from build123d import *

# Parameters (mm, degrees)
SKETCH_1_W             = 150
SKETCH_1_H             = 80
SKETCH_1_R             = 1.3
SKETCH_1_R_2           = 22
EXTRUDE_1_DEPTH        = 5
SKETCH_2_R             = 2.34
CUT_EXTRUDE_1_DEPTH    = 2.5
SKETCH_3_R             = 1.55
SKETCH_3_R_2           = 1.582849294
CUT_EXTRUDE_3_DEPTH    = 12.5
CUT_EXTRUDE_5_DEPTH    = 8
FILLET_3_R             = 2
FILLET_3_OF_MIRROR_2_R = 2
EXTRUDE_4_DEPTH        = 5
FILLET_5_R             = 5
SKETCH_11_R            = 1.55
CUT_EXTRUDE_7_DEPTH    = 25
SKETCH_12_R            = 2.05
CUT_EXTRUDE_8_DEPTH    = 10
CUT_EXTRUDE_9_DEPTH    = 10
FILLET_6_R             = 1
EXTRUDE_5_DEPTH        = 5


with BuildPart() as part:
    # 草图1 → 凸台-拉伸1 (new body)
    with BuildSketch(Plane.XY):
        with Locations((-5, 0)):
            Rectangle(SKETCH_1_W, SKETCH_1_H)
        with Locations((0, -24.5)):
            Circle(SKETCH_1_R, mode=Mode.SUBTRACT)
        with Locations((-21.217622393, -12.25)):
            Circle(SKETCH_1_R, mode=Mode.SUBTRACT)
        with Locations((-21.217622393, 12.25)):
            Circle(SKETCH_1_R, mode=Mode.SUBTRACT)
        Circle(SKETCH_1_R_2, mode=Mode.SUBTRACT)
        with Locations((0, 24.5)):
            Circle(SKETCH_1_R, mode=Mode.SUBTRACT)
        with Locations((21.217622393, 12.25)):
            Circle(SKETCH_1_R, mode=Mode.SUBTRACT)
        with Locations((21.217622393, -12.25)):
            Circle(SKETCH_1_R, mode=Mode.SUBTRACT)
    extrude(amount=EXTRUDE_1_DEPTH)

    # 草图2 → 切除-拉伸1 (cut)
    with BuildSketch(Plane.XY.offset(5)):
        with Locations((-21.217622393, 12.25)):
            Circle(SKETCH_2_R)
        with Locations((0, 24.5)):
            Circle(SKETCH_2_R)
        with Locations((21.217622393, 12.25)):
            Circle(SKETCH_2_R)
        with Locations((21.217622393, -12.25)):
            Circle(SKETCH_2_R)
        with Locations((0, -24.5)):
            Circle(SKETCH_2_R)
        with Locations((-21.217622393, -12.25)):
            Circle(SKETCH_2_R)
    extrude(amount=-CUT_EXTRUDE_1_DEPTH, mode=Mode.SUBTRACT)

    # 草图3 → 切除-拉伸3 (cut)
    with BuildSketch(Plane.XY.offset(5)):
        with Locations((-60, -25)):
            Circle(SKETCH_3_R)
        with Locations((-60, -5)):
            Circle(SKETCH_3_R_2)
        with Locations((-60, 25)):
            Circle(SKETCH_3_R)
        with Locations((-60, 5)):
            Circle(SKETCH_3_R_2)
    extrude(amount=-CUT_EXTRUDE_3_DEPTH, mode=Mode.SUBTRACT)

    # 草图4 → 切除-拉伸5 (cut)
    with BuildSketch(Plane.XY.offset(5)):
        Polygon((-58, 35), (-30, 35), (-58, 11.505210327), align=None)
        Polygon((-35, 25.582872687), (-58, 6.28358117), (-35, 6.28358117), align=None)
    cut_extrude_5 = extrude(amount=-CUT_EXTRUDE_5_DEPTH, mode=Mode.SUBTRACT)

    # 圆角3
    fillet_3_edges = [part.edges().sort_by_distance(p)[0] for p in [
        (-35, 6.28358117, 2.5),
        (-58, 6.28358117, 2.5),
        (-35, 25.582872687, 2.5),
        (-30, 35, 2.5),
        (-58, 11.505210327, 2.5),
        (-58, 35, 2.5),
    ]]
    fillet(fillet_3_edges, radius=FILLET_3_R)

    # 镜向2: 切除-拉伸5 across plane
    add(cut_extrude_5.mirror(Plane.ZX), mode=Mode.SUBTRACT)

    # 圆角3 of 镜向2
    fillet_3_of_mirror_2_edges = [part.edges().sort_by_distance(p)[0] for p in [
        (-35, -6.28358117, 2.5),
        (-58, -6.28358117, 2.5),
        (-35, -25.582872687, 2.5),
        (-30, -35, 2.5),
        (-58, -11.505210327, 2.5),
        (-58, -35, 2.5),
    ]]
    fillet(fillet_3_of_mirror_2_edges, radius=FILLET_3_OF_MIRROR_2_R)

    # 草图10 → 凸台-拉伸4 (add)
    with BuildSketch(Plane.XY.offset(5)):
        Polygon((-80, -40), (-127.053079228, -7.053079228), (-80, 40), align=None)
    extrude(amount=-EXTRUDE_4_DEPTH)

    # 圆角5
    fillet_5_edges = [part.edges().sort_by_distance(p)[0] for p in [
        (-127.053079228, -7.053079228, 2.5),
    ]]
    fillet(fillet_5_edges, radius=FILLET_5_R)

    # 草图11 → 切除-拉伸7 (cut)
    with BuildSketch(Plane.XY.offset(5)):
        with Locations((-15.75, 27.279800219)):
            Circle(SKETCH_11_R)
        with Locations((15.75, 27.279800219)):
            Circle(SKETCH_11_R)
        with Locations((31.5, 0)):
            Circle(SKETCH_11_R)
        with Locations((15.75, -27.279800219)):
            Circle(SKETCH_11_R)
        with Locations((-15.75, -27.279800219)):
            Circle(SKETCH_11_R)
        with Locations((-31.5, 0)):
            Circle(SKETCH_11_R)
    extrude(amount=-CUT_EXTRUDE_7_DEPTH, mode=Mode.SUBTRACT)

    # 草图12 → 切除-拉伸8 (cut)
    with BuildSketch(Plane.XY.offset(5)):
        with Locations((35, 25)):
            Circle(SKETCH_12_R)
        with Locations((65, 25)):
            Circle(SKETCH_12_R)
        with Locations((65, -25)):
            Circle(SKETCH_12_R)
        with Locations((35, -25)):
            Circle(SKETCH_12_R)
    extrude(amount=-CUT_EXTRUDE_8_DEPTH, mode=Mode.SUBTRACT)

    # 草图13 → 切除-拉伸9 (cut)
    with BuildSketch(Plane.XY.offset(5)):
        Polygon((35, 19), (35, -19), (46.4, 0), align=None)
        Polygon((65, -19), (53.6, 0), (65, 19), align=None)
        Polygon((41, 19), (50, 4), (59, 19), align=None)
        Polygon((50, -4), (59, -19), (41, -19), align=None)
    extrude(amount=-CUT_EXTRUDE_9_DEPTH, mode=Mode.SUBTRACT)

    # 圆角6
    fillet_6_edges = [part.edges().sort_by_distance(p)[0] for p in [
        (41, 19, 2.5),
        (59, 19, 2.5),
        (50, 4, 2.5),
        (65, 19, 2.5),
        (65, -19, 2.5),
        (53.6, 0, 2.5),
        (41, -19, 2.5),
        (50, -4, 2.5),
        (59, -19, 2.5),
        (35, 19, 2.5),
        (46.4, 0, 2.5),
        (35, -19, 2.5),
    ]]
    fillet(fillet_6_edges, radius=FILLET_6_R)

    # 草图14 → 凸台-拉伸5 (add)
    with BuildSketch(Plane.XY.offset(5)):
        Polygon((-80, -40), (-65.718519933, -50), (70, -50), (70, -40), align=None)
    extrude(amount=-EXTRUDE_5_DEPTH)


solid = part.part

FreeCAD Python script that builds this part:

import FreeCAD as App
import Part
import Sketcher
from FreeCAD import Vector
Q = App.Units.Quantity


def edges_at(feature, points):
    """Names of the edges that pass closest to the given points."""
    edges = feature.Shape.Edges
    near = lambda p: min(range(len(edges)), key=lambda i: edges[i].distToShape(Part.Vertex(*p))[0])
    return sorted({f"Edge{near(p) + 1}" for p in points})


def add_polygon(sketch, points):
    """Adds a closed chain of lines whose ends are joined by coincident constraints."""
    first, n = sketch.GeometryCount, len(points)
    for a, b in zip(points, points[1:] + points[:1]):
        sketch.addGeometry(Part.LineSegment(App.Vector(*a, 0), App.Vector(*b, 0)), False)
    for i in range(n):
        sketch.addConstraint(Sketcher.Constraint("Coincident", first + i, 2, first + (i + 1) % n, 1))

doc = App.newDocument("Part")
params = doc.addObject("Spreadsheet::Sheet", "Params")
for row, (alias, value) in enumerate([
    ("sketch1_diameter", "44 mm"),
    ("sketch1_diameter2", "2.6 mm"),
    ("sketch1_width", "150 mm"),
    ("sketch1_height", "80 mm"),
    ("pad1_length", "5 mm"),
    ("sketch2_diameter", "4.68 mm"),
    ("pocket1_length", "2.5 mm"),
    ("sketch3_diameter", "3.1 mm"),
    ("pocket2_length", "12.5 mm"),
    ("sketch4_width", "28 mm"),
    ("sketch4_width2", "23 mm"),
    ("pocket3_length", "8 mm"),
    ("fillet_radius", "2 mm"),
    ("fillet2_radius", "2 mm"),
    ("sketch5_height", "80 mm"),
    ("pad2_length", "5 mm"),
    ("fillet3_radius", "5 mm"),
    ("sketch6_diameter", "3.1 mm"),
    ("pocket4_length", "25 mm"),
    ("sketch7_diameter", "4.1 mm"),
    ("pocket5_length", "10 mm"),
    ("sketch8_width", "18 mm"),
    ("sketch8_height", "38 mm"),
    ("pocket6_length", "10 mm"),
    ("fillet4_radius", "1 mm"),
    ("sketch9_width", "150 mm"),
    ("sketch9_height", "10 mm"),
    ("pad3_length", "5 mm"),
], start=1):
    params.set(f"A{row}", alias)
    params.set(f"B{row}", "=" + value)
    params.setAlias(f"B{row}", alias)

body = doc.addObject("PartDesign::Body", "Body")

# Sketch on XY plane
sketch1 = body.newObject("Sketcher::SketchObject", "Sketch")
sketch1.AttachmentSupport = (doc.getObject("XY_Plane"), [""])
sketch1.MapMode = "FlatFace"
add_polygon(sketch1, [(-80, 40), (-80, -40), (70, -40), (70, 40)])  # lines 0-3
sketch1.addGeometry(Part.Circle(Vector(-21.217622, -12.25, 0), Vector(0, 0, 1), 1.3), False)  # 4
sketch1.addGeometry(Part.Circle(Vector(0, -24.5, 0), Vector(0, 0, 1), 1.3), False)  # 5
sketch1.addGeometry(Part.Circle(Vector(21.217622, -12.25, 0), Vector(0, 0, 1), 1.3), False)  # 6
sketch1.addGeometry(Part.Circle(Vector(-21.217622, 12.25, 0), Vector(0, 0, 1), 1.3), False)  # 7
sketch1.addGeometry(Part.Circle(Vector(0, 0, 0), Vector(0, 0, 1), 22), False)  # 8
sketch1.addGeometry(Part.Circle(Vector(21.217622, 12.25, 0), Vector(0, 0, 1), 1.3), False)  # 9
sketch1.addGeometry(Part.Circle(Vector(0, 24.5, 0), Vector(0, 0, 1), 1.3), False)  # 10
sketch1.addConstraint([
    Sketcher.Constraint("Vertical", 0),
    Sketcher.Constraint("Horizontal", 1),
    Sketcher.Constraint("Vertical", 2),
    Sketcher.Constraint("Horizontal", 3),
    Sketcher.Constraint("Coincident", 8, 3, -1, 1),
    Sketcher.Constraint("Equal", 4, 5),
    Sketcher.Constraint("Equal", 5, 6),
    Sketcher.Constraint("Equal", 6, 7),
    Sketcher.Constraint("Equal", 7, 9),
    Sketcher.Constraint("Equal", 9, 10),
    Sketcher.Constraint("Symmetric", 6, 3, 7, 3, -1, 1),
    Sketcher.Constraint("Symmetric", 4, 3, 9, 3, -1, 1),
    Sketcher.Constraint("Symmetric", 5, 3, 10, 3, -1, 1),
    Sketcher.Constraint("Symmetric", 4, 3, 6, 3, -2),
    Sketcher.Constraint("PointOnObject", 5, 3, -2),
    Sketcher.Constraint("Diameter", 8, Q("44 mm")),
    Sketcher.Constraint("Diameter", 4, Q("2.6 mm")),
    Sketcher.Constraint("DistanceX", 1, 1, 1, 2, Q("150 mm")),
    Sketcher.Constraint("DistanceY", 0, 2, 0, 1, Q("80 mm")),
    Sketcher.Constraint("DistanceX", 0, 2, -1, 1, Q("80 mm")),
    Sketcher.Constraint("DistanceY", 0, 2, -1, 1, Q("40 mm")),
    Sketcher.Constraint("DistanceY", 5, 3, -1, 1, Q("24.5 mm")),
    Sketcher.Constraint("DistanceY", 4, 3, 7, 3, Q("24.5 mm")),
    Sketcher.Constraint("DistanceX", 4, 3, -1, 1, Q("21.217622 mm")),
])
sketch1.setExpression("Constraints[19]", "Params.sketch1_diameter")
sketch1.setExpression("Constraints[20]", "Params.sketch1_diameter2")
sketch1.setExpression("Constraints[21]", "Params.sketch1_width")
sketch1.setExpression("Constraints[22]", "Params.sketch1_height")
pad1 = body.newObject("PartDesign::Pad", "Pad")
pad1.Profile = sketch1
pad1.setExpression("Length", "Params.pad1_length")

# Sketch on XY plane
sketch2 = body.newObject("Sketcher::SketchObject", "Sketch001")
sketch2.AttachmentSupport = (doc.getObject("XY_Plane"), [""])
sketch2.MapMode = "FlatFace"
sketch2.AttachmentOffset = App.Placement(Vector(0, 0, 5), App.Rotation())
sketch2.addGeometry([
    Part.Circle(Vector(-21.217622, 12.25, 0), Vector(0, 0, 1), 2.34),  # 0
    Part.Circle(Vector(0, 24.5, 0), Vector(0, 0, 1), 2.34),  # 1
    Part.Circle(Vector(21.217622, 12.25, 0), Vector(0, 0, 1), 2.34),  # 2
    Part.Circle(Vector(21.217622, -12.25, 0), Vector(0, 0, 1), 2.34),  # 3
    Part.Circle(Vector(0, -24.5, 0), Vector(0, 0, 1), 2.34),  # 4
    Part.Circle(Vector(-21.217622, -12.25, 0), Vector(0, 0, 1), 2.34),  # 5
], False)
sketch2.addConstraint([
    Sketcher.Constraint("Equal", 0, 1),
    Sketcher.Constraint("Equal", 1, 2),
    Sketcher.Constraint("Equal", 2, 3),
    Sketcher.Constraint("Equal", 3, 4),
    Sketcher.Constraint("Equal", 4, 5),
    Sketcher.Constraint("Symmetric", 0, 3, 3, 3, -1, 1),
    Sketcher.Constraint("Symmetric", 1, 3, 4, 3, -1, 1),
    Sketcher.Constraint("Symmetric", 2, 3, 5, 3, -1, 1),
    Sketcher.Constraint("Symmetric", 0, 3, 2, 3, -2),
    Sketcher.Constraint("PointOnObject", 1, 3, -2),
    Sketcher.Constraint("Diameter", 0, Q("4.68 mm")),
    Sketcher.Constraint("DistanceY", 4, 3, 1, 3, Q("49 mm")),
    Sketcher.Constraint("DistanceY", 3, 3, 2, 3, Q("24.5 mm")),
    Sketcher.Constraint("DistanceX", 0, 3, -1, 1, Q("21.217622 mm")),
])
sketch2.setExpression("Constraints[10]", "Params.sketch2_diameter")
pocket1 = body.newObject("PartDesign::Pocket", "Pocket")
pocket1.Profile = sketch2
pocket1.setExpression("Length", "Params.pocket1_length")

# Sketch on XY plane
sketch3 = body.newObject("Sketcher::SketchObject", "Sketch002")
sketch3.AttachmentSupport = (doc.getObject("XY_Plane"), [""])
sketch3.MapMode = "FlatFace"
sketch3.AttachmentOffset = App.Placement(Vector(0, 0, 5), App.Rotation())
sketch3.addGeometry([
    Part.Circle(Vector(-60, -25, 0), Vector(0, 0, 1), 1.55),
    Part.Circle(Vector(-60, -5, 0), Vector(0, 0, 1), 1.582849),
    Part.Circle(Vector(-60, 25, 0), Vector(0, 0, 1), 1.55),
    Part.Circle(Vector(-60, 5, 0), Vector(0, 0, 1), 1.582849),
], False)
sketch3.addConstraint([
    Sketcher.Constraint("Equal", 0, 2),
    Sketcher.Constraint("Equal", 1, 3),
    Sketcher.Constraint("Symmetric", 0, 3, 2, 3, -1),
    Sketcher.Constraint("Symmetric", 1, 3, 3, 3, -1),
    Sketcher.Constraint("Vertical", 0, 3, 1, 3),
    Sketcher.Constraint("Diameter", 0, Q("3.1 mm")),
    Sketcher.Constraint("DistanceX", 0, 3, -1, 1, Q("60 mm")),
    Sketcher.Constraint("DistanceY", 0, 3, -1, 1, Q("25 mm")),
    Sketcher.Constraint("DistanceY", 1, 3, -1, 1, Q("5 mm")),
    Sketcher.Constraint("Diameter", 1, Q("3.165699 mm")),
])
sketch3.setExpression("Constraints[5]", "Params.sketch3_diameter")
pocket2 = body.newObject("PartDesign::Pocket", "Pocket001")
pocket2.Profile = sketch3
pocket2.setExpression("Length", "Params.pocket2_length")

# Sketch on XY plane
sketch4 = body.newObject("Sketcher::SketchObject", "Sketch003")
sketch4.AttachmentSupport = (doc.getObject("XY_Plane"), [""])
sketch4.MapMode = "FlatFace"
sketch4.AttachmentOffset = App.Placement(Vector(0, 0, 5), App.Rotation())
add_polygon(sketch4, [(-30, 35), (-58, 35), (-58, 11.50521)])  # lines 0-2
add_polygon(sketch4, [(-35, 25.582873), (-58, 6.283581), (-35, 6.283581)])  # lines 3-5
sketch4.addConstraint([
    Sketcher.Constraint("Horizontal", 0),
    Sketcher.Constraint("Vertical", 1),
    Sketcher.Constraint("Horizontal", 4),
    Sketcher.Constraint("Vertical", 5),
    Sketcher.Constraint("Parallel", 2, 3),
    Sketcher.Constraint("Vertical", 1, 2, 3, 2),
    Sketcher.Constraint("DistanceX", 0, 2, 0, 1, Q("28 mm")),
    Sketcher.Constraint("DistanceX", 4, 1, 4, 2, Q("23 mm")),
    Sketcher.Constraint("Angle", 2, Q("40 deg")),
    Sketcher.Constraint("DistanceX", 0, 2, -1, 1, Q("58 mm")),
    Sketcher.Constraint("DistanceY", -1, 1, 0, 2, Q("35 mm")),
    Sketcher.Constraint("DistanceY", -1, 1, 3, 2, Q("6.283581 mm")),
])
sketch4.setExpression("Constraints[12]", "Params.sketch4_width")
sketch4.setExpression("Constraints[13]", "Params.sketch4_width2")
pocket3 = body.newObject("PartDesign::Pocket", "Pocket002")
pocket3.Profile = sketch4
pocket3.setExpression("Length", "Params.pocket3_length")
doc.recompute()

fillet = body.newObject("PartDesign::Fillet", "Fillet")
fillet.Base = (pocket3, edges_at(pocket3, [
    (-35, 6.284, 2.5),
    (-58, 6.284, 2.5),
    (-35, 25.583, 2.5),
    (-30, 35, 2.5),
    (-58, 11.505, 2.5),
    (-58, 35, 2.5),
]))
fillet.setExpression("Radius", "Params.fillet_radius")
doc.recompute()

mirrored = body.newObject("PartDesign::Mirrored", "Mirrored")
mirrored.Originals = [pocket3]
mirrored.MirrorPlane = (doc.getObject("XZ_Plane"), [""])
body.Tip = mirrored
doc.recompute()

fillet2 = body.newObject("PartDesign::Fillet", "Fillet001")
fillet2.Base = (mirrored, edges_at(mirrored, [
    (-35, -6.284, 2.5),
    (-58, -6.284, 2.5),
    (-35, -25.583, 2.5),
    (-30, -35, 2.5),
    (-58, -11.505, 2.5),
    (-58, -35, 2.5),
]))
fillet2.setExpression("Radius", "Params.fillet2_radius")

# Sketch on XY plane
sketch5 = body.newObject("Sketcher::SketchObject", "Sketch004")
sketch5.AttachmentSupport = (doc.getObject("XY_Plane"), [""])
sketch5.MapMode = "FlatFace"
sketch5.AttachmentOffset = App.Placement(Vector(0, 0, 5), App.Rotation())
add_polygon(sketch5, [(-127.053079, -7.053079), (-80, -40), (-80, 40)])  # lines 0-2
sketch5.addConstraint([
    Sketcher.Constraint("Vertical", 1),
    Sketcher.Constraint("DistanceY", 1, 1, 1, 2, Q("80 mm")),
    Sketcher.Constraint("Angle", 0, Q("-35 deg")),
    Sketcher.Constraint("Angle", 2, Q("-135 deg")),
    Sketcher.Constraint("DistanceX", 0, 2, -1, 1, Q("80 mm")),
    Sketcher.Constraint("DistanceY", 0, 2, -1, 1, Q("40 mm")),
])
sketch5.setExpression("Constraints[4]", "Params.sketch5_height")
pad2 = body.newObject("PartDesign::Pad", "Pad001")
pad2.Profile = sketch5
pad2.setExpression("Length", "Params.pad2_length")
pad2.Reversed = True
doc.recompute()

fillet3 = body.newObject("PartDesign::Fillet", "Fillet002")
fillet3.Base = (pad2, edges_at(pad2, [(-127.053, -7.053, 2.5)]))
fillet3.setExpression("Radius", "Params.fillet3_radius")

# Sketch on XY plane
sketch6 = body.newObject("Sketcher::SketchObject", "Sketch005")
sketch6.AttachmentSupport = (doc.getObject("XY_Plane"), [""])
sketch6.MapMode = "FlatFace"
sketch6.AttachmentOffset = App.Placement(Vector(0, 0, 5), App.Rotation())
sketch6.addGeometry([
    Part.Circle(Vector(-15.75, 27.2798, 0), Vector(0, 0, 1), 1.55),  # 0
    Part.Circle(Vector(15.75, 27.2798, 0), Vector(0, 0, 1), 1.55),  # 1
    Part.Circle(Vector(31.5, 0, 0), Vector(0, 0, 1), 1.55),  # 2
    Part.Circle(Vector(15.75, -27.2798, 0), Vector(0, 0, 1), 1.55),  # 3
    Part.Circle(Vector(-15.75, -27.2798, 0), Vector(0, 0, 1), 1.55),  # 4
    Part.Circle(Vector(-31.5, 0, 0), Vector(0, 0, 1), 1.55),  # 5
], False)
sketch6.addConstraint([
    Sketcher.Constraint("Equal", 0, 1),
    Sketcher.Constraint("Equal", 1, 2),
    Sketcher.Constraint("Equal", 2, 3),
    Sketcher.Constraint("Equal", 3, 4),
    Sketcher.Constraint("Equal", 4, 5),
    Sketcher.Constraint("Symmetric", 0, 3, 3, 3, -1, 1),
    Sketcher.Constraint("Symmetric", 1, 3, 4, 3, -1, 1),
    Sketcher.Constraint("Symmetric", 2, 3, 5, 3, -1, 1),
    Sketcher.Constraint("Symmetric", 0, 3, 1, 3, -2),
    Sketcher.Constraint("PointOnObject", 2, 3, -1),
    Sketcher.Constraint("Diameter", 0, Q("3.1 mm")),
    Sketcher.Constraint("DistanceX", 5, 3, 2, 3, Q("63 mm")),
    Sketcher.Constraint("DistanceX", 0, 3, 1, 3, Q("31.5 mm")),
    Sketcher.Constraint("DistanceY", -1, 1, 0, 3, Q("27.2798 mm")),
])
sketch6.setExpression("Constraints[10]", "Params.sketch6_diameter")
pocket4 = body.newObject("PartDesign::Pocket", "Pocket003")
pocket4.Profile = sketch6
pocket4.setExpression("Length", "Params.pocket4_length")

# Sketch on XY plane
sketch7 = body.newObject("Sketcher::SketchObject", "Sketch006")
sketch7.AttachmentSupport = (doc.getObject("XY_Plane"), [""])
sketch7.MapMode = "FlatFace"
sketch7.AttachmentOffset = App.Placement(Vector(0, 0, 5), App.Rotation())
sketch7.addGeometry([
    Part.Circle(Vector(35, 25, 0), Vector(0, 0, 1), 2.05),
    Part.Circle(Vector(65, 25, 0), Vector(0, 0, 1), 2.05),
    Part.Circle(Vector(65, -25, 0), Vector(0, 0, 1), 2.05),
    Part.Circle(Vector(35, -25, 0), Vector(0, 0, 1), 2.05),
], False)
sketch7.addConstraint([
    Sketcher.Constraint("Equal", 0, 1),
    Sketcher.Constraint("Equal", 1, 2),
    Sketcher.Constraint("Equal", 2, 3),
    Sketcher.Constraint("Symmetric", 1, 3, 2, 3, -1),
    Sketcher.Constraint("Symmetric", 0, 3, 3, 3, -1),
    Sketcher.Constraint("Horizontal", 0, 3, 1, 3),
    Sketcher.Constraint("Diameter", 0, Q("4.1 mm")),
    Sketcher.Constraint("DistanceX", -1, 1, 0, 3, Q("35 mm")),
    Sketcher.Constraint("DistanceY", -1, 1, 0, 3, Q("25 mm")),
    Sketcher.Constraint("DistanceX", -1, 1, 1, 3, Q("65 mm")),
])
sketch7.setExpression("Constraints[6]", "Params.sketch7_diameter")
pocket5 = body.newObject("PartDesign::Pocket", "Pocket004")
pocket5.Profile = sketch7
pocket5.setExpression("Length", "Params.pocket5_length")

# Sketch on XY plane
sketch8 = body.newObject("Sketcher::SketchObject", "Sketch007")
sketch8.AttachmentSupport = (doc.getObject("XY_Plane"), [""])
sketch8.MapMode = "FlatFace"
sketch8.AttachmentOffset = App.Placement(Vector(0, 0, 5), App.Rotation())
add_polygon(sketch8, [(35, 19), (35, -19), (46.4, 0)])  # lines 0-2
add_polygon(sketch8, [(53.6, 0), (65, -19), (65, 19)])  # lines 3-5
add_polygon(sketch8, [(41, 19), (50, 4), (59, 19)])  # lines 6-8
add_polygon(sketch8, [(59, -19), (50, -4), (41, -19)])  # lines 9-11
sketch8.addConstraint([
    Sketcher.Constraint("Vertical", 0),
    Sketcher.Constraint("Vertical", 4),
    Sketcher.Constraint("Horizontal", 8),
    Sketcher.Constraint("Horizontal", 11),
    Sketcher.Constraint("Symmetric", 6, 2, 9, 2, -1),
    Sketcher.Constraint("Symmetric", 8, 2, 10, 2, -1),
    Sketcher.Constraint("PointOnObject", 1, 2, -1),
    Sketcher.Constraint("PointOnObject", 5, 2, -1),
    Sketcher.Constraint("Parallel", 2, 3),
    Sketcher.Constraint("Parallel", 1, 5),
    Sketcher.Constraint("Parallel", 3, 6),
    Sketcher.Constraint("Parallel", 5, 7),
    Sketcher.Constraint("Parallel", 6, 9),
    Sketcher.Constraint("Parallel", 7, 10),
    Sketcher.Constraint("Horizontal", 0, 2, 3, 2),
    Sketcher.Constraint("Horizontal", 4, 2, 7, 2),
    Sketcher.Constraint("DistanceX", 8, 2, 8, 1, Q("18 mm")),
    Sketcher.Constraint("DistanceY", 0, 2, 0, 1, Q("38 mm")),
    Sketcher.Constraint("DistanceX", -1, 1, 0, 2, Q("35 mm")),
    Sketcher.Constraint("DistanceX", -1, 1, 3, 2, Q("65 mm")),
    Sketcher.Constraint("DistanceX", -1, 1, 6, 2, Q("50 mm")),
    Sketcher.Constraint("DistanceY", -1, 1, 6, 2, Q("4 mm")),
])
sketch8.setExpression("Constraints[28]", "Params.sketch8_width")
sketch8.setExpression("Constraints[29]", "Params.sketch8_height")
pocket6 = body.newObject("PartDesign::Pocket", "Pocket005")
pocket6.Profile = sketch8
pocket6.setExpression("Length", "Params.pocket6_length")
doc.recompute()

fillet4 = body.newObject("PartDesign::Fillet", "Fillet003")
fillet4.Base = (pocket6, edges_at(pocket6, [
    (41, 19, 2.5),
    (59, 19, 2.5),
    (50, 4, 2.5),
    (65, 19, 2.5),
    (65, -19, 2.5),
    (53.6, 0, 2.5),
    (41, -19, 2.5),
    (50, -4, 2.5),
    (59, -19, 2.5),
    (35, 19, 2.5),
    (46.4, 0, 2.5),
    (35, -19, 2.5),
]))
fillet4.setExpression("Radius", "Params.fillet4_radius")

# Sketch on XY plane
sketch9 = body.newObject("Sketcher::SketchObject", "Sketch008")
sketch9.AttachmentSupport = (doc.getObject("XY_Plane"), [""])
sketch9.MapMode = "FlatFace"
sketch9.AttachmentOffset = App.Placement(Vector(0, 0, 5), App.Rotation())
add_polygon(sketch9, [(-80, -40), (-65.71852, -50), (70, -50), (70, -40)])  # lines 0-3
sketch9.addConstraint([
    Sketcher.Constraint("Horizontal", 1),
    Sketcher.Constraint("Vertical", 2),
    Sketcher.Constraint("Horizontal", 3),
    Sketcher.Constraint("DistanceX", 3, 2, 3, 1, Q("150 mm")),
    Sketcher.Constraint("DistanceY", 2, 1, 2, 2, Q("10 mm")),
    Sketcher.Constraint("Angle", 0, Q("-35 deg")),
    Sketcher.Constraint("DistanceY", 0, 2, -1, 1, Q("50 mm")),
    Sketcher.Constraint("DistanceX", -1, 1, 1, 2, Q("70 mm")),
])
sketch9.setExpression("Constraints[7]", "Params.sketch9_width")
sketch9.setExpression("Constraints[8]", "Params.sketch9_height")
pad3 = body.newObject("PartDesign::Pad", "Pad002")
pad3.Profile = sketch9
pad3.setExpression("Length", "Params.pad3_length")
pad3.Reversed = True

doc.recompute()
